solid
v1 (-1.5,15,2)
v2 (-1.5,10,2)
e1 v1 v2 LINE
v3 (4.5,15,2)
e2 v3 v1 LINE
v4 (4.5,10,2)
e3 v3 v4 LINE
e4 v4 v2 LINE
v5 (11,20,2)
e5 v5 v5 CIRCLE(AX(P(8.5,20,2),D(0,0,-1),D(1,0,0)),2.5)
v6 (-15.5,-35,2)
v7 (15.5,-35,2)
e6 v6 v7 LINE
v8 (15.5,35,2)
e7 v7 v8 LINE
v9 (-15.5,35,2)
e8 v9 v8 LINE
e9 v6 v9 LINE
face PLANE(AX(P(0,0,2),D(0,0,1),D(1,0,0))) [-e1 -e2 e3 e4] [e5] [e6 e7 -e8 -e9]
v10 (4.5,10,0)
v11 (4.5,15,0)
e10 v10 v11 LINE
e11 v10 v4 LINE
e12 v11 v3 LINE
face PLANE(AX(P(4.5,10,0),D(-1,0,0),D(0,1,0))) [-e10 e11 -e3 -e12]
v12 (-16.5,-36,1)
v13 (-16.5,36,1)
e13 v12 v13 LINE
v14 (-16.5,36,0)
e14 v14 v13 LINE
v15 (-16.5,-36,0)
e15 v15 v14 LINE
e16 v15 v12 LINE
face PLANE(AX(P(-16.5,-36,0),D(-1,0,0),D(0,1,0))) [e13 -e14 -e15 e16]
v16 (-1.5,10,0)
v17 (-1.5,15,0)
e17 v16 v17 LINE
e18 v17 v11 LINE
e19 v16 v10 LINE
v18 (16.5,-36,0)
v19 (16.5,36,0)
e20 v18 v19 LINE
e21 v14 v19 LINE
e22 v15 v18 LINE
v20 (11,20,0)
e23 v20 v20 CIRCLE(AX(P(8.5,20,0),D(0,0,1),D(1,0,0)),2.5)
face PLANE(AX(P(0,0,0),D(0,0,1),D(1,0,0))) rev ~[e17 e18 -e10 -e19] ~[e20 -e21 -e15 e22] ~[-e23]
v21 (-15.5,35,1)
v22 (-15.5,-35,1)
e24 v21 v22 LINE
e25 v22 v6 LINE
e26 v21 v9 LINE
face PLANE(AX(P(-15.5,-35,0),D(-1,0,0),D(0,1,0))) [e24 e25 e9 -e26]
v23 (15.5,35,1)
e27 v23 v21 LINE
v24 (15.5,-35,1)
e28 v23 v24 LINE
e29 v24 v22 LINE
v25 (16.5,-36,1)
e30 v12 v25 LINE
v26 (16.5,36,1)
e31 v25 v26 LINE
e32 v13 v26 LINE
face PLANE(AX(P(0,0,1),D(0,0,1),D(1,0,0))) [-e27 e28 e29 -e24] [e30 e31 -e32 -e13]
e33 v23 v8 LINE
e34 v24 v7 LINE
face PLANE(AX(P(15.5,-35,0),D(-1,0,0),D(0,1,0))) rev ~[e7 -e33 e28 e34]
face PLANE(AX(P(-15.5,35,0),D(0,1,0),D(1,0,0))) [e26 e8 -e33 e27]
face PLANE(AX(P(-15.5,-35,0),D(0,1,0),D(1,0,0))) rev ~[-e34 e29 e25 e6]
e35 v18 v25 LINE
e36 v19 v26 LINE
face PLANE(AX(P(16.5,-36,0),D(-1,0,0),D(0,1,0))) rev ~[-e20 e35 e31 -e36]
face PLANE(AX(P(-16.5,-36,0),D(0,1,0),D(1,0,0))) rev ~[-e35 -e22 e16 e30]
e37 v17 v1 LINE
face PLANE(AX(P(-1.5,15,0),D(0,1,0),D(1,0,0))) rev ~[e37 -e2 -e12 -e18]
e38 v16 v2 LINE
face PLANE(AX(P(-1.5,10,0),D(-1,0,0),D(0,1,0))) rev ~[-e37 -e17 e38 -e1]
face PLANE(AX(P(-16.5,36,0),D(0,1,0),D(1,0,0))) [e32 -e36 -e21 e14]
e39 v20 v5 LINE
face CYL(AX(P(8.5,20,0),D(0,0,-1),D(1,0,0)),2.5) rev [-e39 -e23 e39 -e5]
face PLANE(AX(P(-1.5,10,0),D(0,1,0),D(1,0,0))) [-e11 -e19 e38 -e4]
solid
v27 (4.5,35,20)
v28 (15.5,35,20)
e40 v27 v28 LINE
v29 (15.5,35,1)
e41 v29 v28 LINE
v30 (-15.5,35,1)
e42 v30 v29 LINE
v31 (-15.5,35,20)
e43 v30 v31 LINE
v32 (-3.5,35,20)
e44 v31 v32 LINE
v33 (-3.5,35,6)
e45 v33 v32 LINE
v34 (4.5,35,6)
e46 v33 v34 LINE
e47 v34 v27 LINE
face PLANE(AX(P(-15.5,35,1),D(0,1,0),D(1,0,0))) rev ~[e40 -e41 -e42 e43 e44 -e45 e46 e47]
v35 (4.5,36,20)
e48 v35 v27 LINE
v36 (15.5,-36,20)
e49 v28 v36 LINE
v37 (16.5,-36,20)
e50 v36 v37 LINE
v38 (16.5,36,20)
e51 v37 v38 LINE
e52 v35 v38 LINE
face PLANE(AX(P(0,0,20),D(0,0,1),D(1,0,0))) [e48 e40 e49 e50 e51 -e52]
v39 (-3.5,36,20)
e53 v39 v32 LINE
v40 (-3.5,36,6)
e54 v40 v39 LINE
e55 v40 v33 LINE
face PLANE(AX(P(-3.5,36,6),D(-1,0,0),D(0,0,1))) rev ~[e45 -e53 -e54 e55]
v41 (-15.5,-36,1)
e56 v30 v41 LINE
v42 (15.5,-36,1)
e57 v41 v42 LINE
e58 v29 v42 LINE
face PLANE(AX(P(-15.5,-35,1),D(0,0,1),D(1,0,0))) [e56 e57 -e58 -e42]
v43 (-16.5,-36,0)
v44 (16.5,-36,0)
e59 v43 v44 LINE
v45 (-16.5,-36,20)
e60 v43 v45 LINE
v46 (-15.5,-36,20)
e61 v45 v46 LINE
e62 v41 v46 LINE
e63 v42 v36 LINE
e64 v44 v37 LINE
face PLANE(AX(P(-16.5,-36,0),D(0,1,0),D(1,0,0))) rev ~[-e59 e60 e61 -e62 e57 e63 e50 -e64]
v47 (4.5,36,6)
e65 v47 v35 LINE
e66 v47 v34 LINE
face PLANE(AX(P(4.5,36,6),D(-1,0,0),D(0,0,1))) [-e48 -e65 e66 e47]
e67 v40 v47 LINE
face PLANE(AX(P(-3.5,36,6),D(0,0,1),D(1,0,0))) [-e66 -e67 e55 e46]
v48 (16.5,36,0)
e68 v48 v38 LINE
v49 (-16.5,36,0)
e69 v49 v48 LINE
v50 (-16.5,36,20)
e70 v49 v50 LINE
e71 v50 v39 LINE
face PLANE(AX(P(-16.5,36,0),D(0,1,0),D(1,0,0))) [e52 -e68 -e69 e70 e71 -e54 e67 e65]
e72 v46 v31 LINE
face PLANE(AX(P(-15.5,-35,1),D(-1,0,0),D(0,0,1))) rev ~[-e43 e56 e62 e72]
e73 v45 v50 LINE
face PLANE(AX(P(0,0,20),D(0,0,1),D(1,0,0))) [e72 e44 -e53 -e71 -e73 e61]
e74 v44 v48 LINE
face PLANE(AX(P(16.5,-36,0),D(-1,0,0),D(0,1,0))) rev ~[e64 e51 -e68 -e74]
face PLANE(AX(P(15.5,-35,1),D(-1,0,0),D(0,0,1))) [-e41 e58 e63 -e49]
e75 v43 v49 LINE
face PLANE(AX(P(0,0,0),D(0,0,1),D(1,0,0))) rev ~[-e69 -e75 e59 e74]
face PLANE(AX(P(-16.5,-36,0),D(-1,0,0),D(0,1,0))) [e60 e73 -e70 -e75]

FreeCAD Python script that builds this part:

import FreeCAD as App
import Part
import Sketcher
Q = App.Units.Quantity


def add_polygon(sketch, points):
    """Adds a closed chain of lines whose ends are joined by coincident constraints."""
    first, n = sketch.GeometryCount, len(points)
    for a, b in zip(points, points[1:] + points[:1]):
        sketch.addGeometry(Part.LineSegment(App.Vector(*a, 0), App.Vector(*b, 0)), False)
    for i in range(n):
        sketch.addConstraint(Sketcher.Constraint("Coincident", first + i, 2, first + (i + 1) % n, 1))

doc = App.newDocument("Part")
params = doc.addObject("Spreadsheet::Sheet", "Params")
for row, (alias, value) in enumerate([
    ("sketch1_width", "33 mm"),
    ("sketch1_height", "72 mm"),
    ("pad1_length", "20 mm"),
    ("sketch2_width", "31 mm"),
    ("sketch2_height", "70 mm"),
    ("pocket1_length", "19 mm"),
    ("sketch3_width", "8 mm"),
    ("pocket2_length", "5 mm"),
    ("sketch4_width", "31 mm"),
    ("sketch4_height", "19 mm"),
    ("pocket3_length", "5 mm"),
    ("sketch5_width", "33 mm"),
    ("sketch5_height", "72 mm"),
    ("pad2_length", "1 mm"),
    ("sketch6_width", "31 mm"),
    ("sketch6_height", "70 mm"),
    ("pad3_length", "2 mm"),
    ("sketch7_width", "6 mm"),
    ("sketch7_height", "5 mm"),
    ("sketch8_diameter", "5 mm"),
], start=1):
    params.set(f"A{row}", alias)
    params.set(f"B{row}", "=" + value)
    params.setAlias(f"B{row}", alias)

body = doc.addObject("PartDesign::Body", "Body")

# Sketch on XY plane
sketch1 = body.newObject("Sketcher::SketchObject", "Sketch")
sketch1.AttachmentSupport = (doc.getObject("XY_Plane"), [""])
sketch1.MapMode = "FlatFace"
add_polygon(sketch1, [(-16, 36), (-16, -36), (16, -36), (16, 36)])  # lines 0-3
sketch1.addConstraint(Sketcher.Constraint("Vertical", 0))
sketch1.addConstraint(Sketcher.Constraint("Horizontal", 1))
sketch1.addConstraint(Sketcher.Constraint("Vertical", 2))
sketch1.addConstraint(Sketcher.Constraint("Horizontal", 3))
sketch1.addConstraint(Sketcher.Constraint("Symmetric", 0, 2, 2, 2, -1, 1))
sketch1.addConstraint(Sketcher.Constraint("DistanceX", 1, 1, 1, 2, Q("33 mm")))
sketch1.addConstraint(Sketcher.Constraint("DistanceY", 0, 2, 0, 1, Q("72 mm")))
sketch1.setExpression("Constraints[9]", "Params.sketch1_width")
sketch1.setExpression("Constraints[10]", "Params.sketch1_height")
pad1 = body.newObject("PartDesign::Pad", "Pad")
pad1.Profile = sketch1
pad1.setExpression("Length", "Params.pad1_length")

# Sketch on XY plane
sketch2 = body.newObject("Sketcher::SketchObject", "Sketch001")
sketch2.AttachmentSupport = (doc.getObject("XY_Plane"), [""])
sketch2.MapMode = "FlatFace"
sketch2.AttachmentOffset = App.Placement(App.Vector(0, 0, 1), App.Rotation())
add_polygon(sketch2, [(-16, 35), (-16, -35), (16, -35), (16, 35)])  # lines 0-3
sketch2.addConstraint(Sketcher.Constraint("Vertical", 0))
sketch2.addConstraint(Sketcher.Constraint("Horizontal", 1))
sketch2.addConstraint(Sketcher.Constraint("Vertical", 2))
sketch2.addConstraint(Sketcher.Constraint("Horizontal", 3))
sketch2.addConstraint(Sketcher.Constraint("Symmetric", 0, 2, 2, 2, -1, 1))
sketch2.addConstraint(Sketcher.Constraint("DistanceX", 1, 1, 1, 2, Q("31 mm")))
sketch2.addConstraint(Sketcher.Constraint("DistanceY", 0, 2, 0, 1, Q("70 mm")))
sketch2.setExpression("Constraints[9]", "Params.sketch2_width")
sketch2.setExpression("Constraints[10]", "Params.sketch2_height")
pocket1 = body.newObject("PartDesign::Pocket", "Pocket")
pocket1.Profile = sketch2
pocket1.setExpression("Length", "Params.pocket1_length")
pocket1.Reversed = True

# Sketch on XZ plane
sketch3 = body.newObject("Sketcher::SketchObject", "Sketch002")
sketch3.AttachmentSupport = (doc.getObject("XZ_Plane"), [""])
sketch3.MapMode = "FlatFace"
sketch3.AttachmentOffset = App.Placement(App.Vector(0, 0, -36), App.Rotation())
add_polygon(sketch3, [(-4, 20), (-4, 6), (4, 6), (4, 20)])  # lines 0-3
sketch3.addConstraint(Sketcher.Constraint("Vertical", 0))
sketch3.addConstraint(Sketcher.Constraint("Horizontal", 1))
sketch3.addConstraint(Sketcher.Constraint("Vertical", 2))
sketch3.addConstraint(Sketcher.Constraint("Horizontal", 3))
sketch3.addConstraint(Sketcher.Constraint("DistanceX", 1, 1, 1, 2, Q("8 mm")))
sketch3.addConstraint(Sketcher.Constraint("DistanceY", -1, 1, 0, 2, Q("6 mm")))
sketch3.addConstraint(Sketcher.Constraint("DistanceX", 0, 2, -1, 1, Q("3.5 mm")))
sketch3.addConstraint(Sketcher.Constraint("DistanceY", 0, 2, 0, 1, Q("14.003113 mm")))
sketch3.setExpression("Constraints[8]", "Params.sketch3_width")
pocket2 = body.newObject("PartDesign::Pocket", "Pocket001")
pocket2.Profile = sketch3
pocket2.setExpression("Length", "Params.pocket2_length")
pocket2.Reversed = True

# Sketch on XZ plane
sketch4 = body.newObject("Sketcher::SketchObject", "Sketch003")
sketch4.AttachmentSupport = (doc.getObject("XZ_Plane"), [""])
sketch4.MapMode = "FlatFace"
sketch4.AttachmentOffset = App.Placement(App.Vector(0, 0, 35), App.Rotation())
add_polygon(sketch4, [(-16, 20), (-16, 1), (16, 1), (16, 20)])  # lines 0-3
sketch4.addConstraint(Sketcher.Constraint("Vertical", 0))
sketch4.addConstraint(Sketcher.Constraint("Horizontal", 1))
sketch4.addConstraint(Sketcher.Constraint("Vertical", 2))
sketch4.addConstraint(Sketcher.Constraint("Horizontal", 3))
sketch4.addConstraint(Sketcher.Constraint("DistanceX", 1, 1, 1, 2, Q("31 mm")))
sketch4.addConstraint(Sketcher.Constraint("DistanceY", 0, 2, 0, 1, Q("19 mm")))
sketch4.addConstraint(Sketcher.Constraint("DistanceY", -1, 1, 0, 2, Q("1 mm")))
sketch4.addConstraint(Sketcher.Constraint("DistanceX", 0, 2, -1, 1, Q("15.5 mm")))
sketch4.setExpression("Constraints[8]", "Params.sketch4_width")
sketch4.setExpression("Constraints[9]", "Params.sketch4_height")
pocket3 = body.newObject("PartDesign::Pocket", "Pocket002")
pocket3.Profile = sketch4
pocket3.setExpression("Length", "Params.pocket3_length")
pocket3.Reversed = True
body2 = doc.addObject("PartDesign::Body", "Body001")

# Sketch on XY plane
sketch5 = body2.newObject("Sketcher::SketchObject", "Sketch004")
sketch5.AttachmentSupport = (doc.getObject("XY_Plane001"), [""])
sketch5.MapMode = "FlatFace"
add_polygon(sketch5, [(-16, 36), (-16, -36), (16, -36), (16, 36)])  # lines 0-3
sketch5.addConstraint(Sketcher.Constraint("Vertical", 0))
sketch5.addConstraint(Sketcher.Constraint("Horizontal", 1))
sketch5.addConstraint(Sketcher.Constraint("Vertical", 2))
sketch5.addConstraint(Sketcher.Constraint("Horizontal", 3))
sketch5.addConstraint(Sketcher.Constraint("Symmetric", 0, 2, 2, 2, -1, 1))
sketch5.addConstraint(Sketcher.Constraint("DistanceX", 1, 1, 1, 2, Q("33 mm")))
sketch5.addConstraint(Sketcher.Constraint("DistanceY", 0, 2, 0, 1, Q("72 mm")))
sketch5.setExpression("Constraints[9]", "Params.sketch5_width")
sketch5.setExpression("Constraints[10]", "Params.sketch5_height")
pad2 = body2.newObject("PartDesign::Pad", "Pad001")
pad2.Profile = sketch5
pad2.setExpression("Length", "Params.pad2_length")

# Sketch on XY plane
sketch6 = body2.newObject("Sketcher::SketchObject", "Sketch005")
sketch6.AttachmentSupport = (doc.getObject("XY_Plane001"), [""])
sketch6.MapMode = "FlatFace"
add_polygon(sketch6, [(-16, 35), (-16, -35), (16, -35), (16, 35)])  # lines 0-3
sketch6.addConstraint(Sketcher.Constraint("Vertical", 0))
sketch6.addConstraint(Sketcher.Constraint("Horizontal", 1))
sketch6.addConstraint(Sketcher.Constraint("Vertical", 2))
sketch6.addConstraint(Sketcher.Constraint("Horizontal", 3))
sketch6.addConstraint(Sketcher.Constraint("Symmetric", 0, 2, 2, 2, -1, 1))
sketch6.addConstraint(Sketcher.Constraint("DistanceX", 1, 1, 1, 2, Q("31 mm")))
sketch6.addConstraint(Sketcher.Constraint("DistanceY", 0, 2, 0, 1, Q("70 mm")))
sketch6.setExpression("Constraints[9]", "Params.sketch6_width")
sketch6.setExpression("Constraints[10]", "Params.sketch6_height")
pad3 = body2.newObject("PartDesign::Pad", "Pad002")
pad3.Profile = sketch6
pad3.setExpression("Length", "Params.pad3_length")

# Sketch on XY plane
sketch7 = body2.newObject("Sketcher::SketchObject", "Sketch006")
sketch7.AttachmentSupport = (doc.getObject("XY_Plane001"), [""])
sketch7.MapMode = "FlatFace"
add_polygon(sketch7, [(-2, 15), (-2, 10), (4, 10), (4, 15)])  # lines 0-3
sketch7.addConstraint(Sketcher.Constraint("Vertical", 0))
sketch7.addConstraint(Sketcher.Constraint("Horizontal", 1))
sketch7.addConstraint(Sketcher.Constraint("Vertical", 2))
sketch7.addConstraint(Sketcher.Constraint("Horizontal", 3))
sketch7.addConstraint(Sketcher.Constraint("DistanceX", 1, 1, 1, 2, Q("6 mm")))
sketch7.addConstraint(Sketcher.Constraint("DistanceY", 0, 2, 0, 1, Q("5 mm")))
sketch7.addConstraint(Sketcher.Constraint("DistanceY", -1, 1, 0, 2, Q("10 mm")))
sketch7.addConstraint(Sketcher.Constraint("DistanceX", 0, 2, -1, 1, Q("1.5 mm")))
sketch7.setExpression("Constraints[8]", "Params.sketch7_width")
sketch7.setExpression("Constraints[9]", "Params.sketch7_height")
pocket4 = body2.newObject("PartDesign::Pocket", "Pocket003")
pocket4.Profile = sketch7
pocket4.Type = "ThroughAll"
pocket4.Midplane = True

# Sketch on XY plane
sketch8 = body2.newObject("Sketcher::SketchObject", "Sketch007")
sketch8.AttachmentSupport = (doc.getObject("XY_Plane001"), [""])
sketch8.MapMode = "FlatFace"
sketch8.addGeometry(Part.Circle(App.Vector(8.5, 20, 0), App.Vector(0, 0, 1), 2.5), False)
sketch8.addConstraint(Sketcher.Constraint("Diameter", 0, Q("5 mm")))
sketch8.addConstraint(Sketcher.Constraint("DistanceY", -1, 1, 0, 3, Q("20 mm")))
sketch8.addConstraint(Sketcher.Constraint("DistanceX", -1, 1, 0, 3, Q("8.5 mm")))
sketch8.setExpression("Constraints[0]", "Params.sketch8_diameter")
pocket5 = body2.newObject("PartDesign::Pocket", "Pocket004")
pocket5.Profile = sketch8
pocket5.Type = "ThroughAll"
pocket5.Reversed = True

doc.recompute()
